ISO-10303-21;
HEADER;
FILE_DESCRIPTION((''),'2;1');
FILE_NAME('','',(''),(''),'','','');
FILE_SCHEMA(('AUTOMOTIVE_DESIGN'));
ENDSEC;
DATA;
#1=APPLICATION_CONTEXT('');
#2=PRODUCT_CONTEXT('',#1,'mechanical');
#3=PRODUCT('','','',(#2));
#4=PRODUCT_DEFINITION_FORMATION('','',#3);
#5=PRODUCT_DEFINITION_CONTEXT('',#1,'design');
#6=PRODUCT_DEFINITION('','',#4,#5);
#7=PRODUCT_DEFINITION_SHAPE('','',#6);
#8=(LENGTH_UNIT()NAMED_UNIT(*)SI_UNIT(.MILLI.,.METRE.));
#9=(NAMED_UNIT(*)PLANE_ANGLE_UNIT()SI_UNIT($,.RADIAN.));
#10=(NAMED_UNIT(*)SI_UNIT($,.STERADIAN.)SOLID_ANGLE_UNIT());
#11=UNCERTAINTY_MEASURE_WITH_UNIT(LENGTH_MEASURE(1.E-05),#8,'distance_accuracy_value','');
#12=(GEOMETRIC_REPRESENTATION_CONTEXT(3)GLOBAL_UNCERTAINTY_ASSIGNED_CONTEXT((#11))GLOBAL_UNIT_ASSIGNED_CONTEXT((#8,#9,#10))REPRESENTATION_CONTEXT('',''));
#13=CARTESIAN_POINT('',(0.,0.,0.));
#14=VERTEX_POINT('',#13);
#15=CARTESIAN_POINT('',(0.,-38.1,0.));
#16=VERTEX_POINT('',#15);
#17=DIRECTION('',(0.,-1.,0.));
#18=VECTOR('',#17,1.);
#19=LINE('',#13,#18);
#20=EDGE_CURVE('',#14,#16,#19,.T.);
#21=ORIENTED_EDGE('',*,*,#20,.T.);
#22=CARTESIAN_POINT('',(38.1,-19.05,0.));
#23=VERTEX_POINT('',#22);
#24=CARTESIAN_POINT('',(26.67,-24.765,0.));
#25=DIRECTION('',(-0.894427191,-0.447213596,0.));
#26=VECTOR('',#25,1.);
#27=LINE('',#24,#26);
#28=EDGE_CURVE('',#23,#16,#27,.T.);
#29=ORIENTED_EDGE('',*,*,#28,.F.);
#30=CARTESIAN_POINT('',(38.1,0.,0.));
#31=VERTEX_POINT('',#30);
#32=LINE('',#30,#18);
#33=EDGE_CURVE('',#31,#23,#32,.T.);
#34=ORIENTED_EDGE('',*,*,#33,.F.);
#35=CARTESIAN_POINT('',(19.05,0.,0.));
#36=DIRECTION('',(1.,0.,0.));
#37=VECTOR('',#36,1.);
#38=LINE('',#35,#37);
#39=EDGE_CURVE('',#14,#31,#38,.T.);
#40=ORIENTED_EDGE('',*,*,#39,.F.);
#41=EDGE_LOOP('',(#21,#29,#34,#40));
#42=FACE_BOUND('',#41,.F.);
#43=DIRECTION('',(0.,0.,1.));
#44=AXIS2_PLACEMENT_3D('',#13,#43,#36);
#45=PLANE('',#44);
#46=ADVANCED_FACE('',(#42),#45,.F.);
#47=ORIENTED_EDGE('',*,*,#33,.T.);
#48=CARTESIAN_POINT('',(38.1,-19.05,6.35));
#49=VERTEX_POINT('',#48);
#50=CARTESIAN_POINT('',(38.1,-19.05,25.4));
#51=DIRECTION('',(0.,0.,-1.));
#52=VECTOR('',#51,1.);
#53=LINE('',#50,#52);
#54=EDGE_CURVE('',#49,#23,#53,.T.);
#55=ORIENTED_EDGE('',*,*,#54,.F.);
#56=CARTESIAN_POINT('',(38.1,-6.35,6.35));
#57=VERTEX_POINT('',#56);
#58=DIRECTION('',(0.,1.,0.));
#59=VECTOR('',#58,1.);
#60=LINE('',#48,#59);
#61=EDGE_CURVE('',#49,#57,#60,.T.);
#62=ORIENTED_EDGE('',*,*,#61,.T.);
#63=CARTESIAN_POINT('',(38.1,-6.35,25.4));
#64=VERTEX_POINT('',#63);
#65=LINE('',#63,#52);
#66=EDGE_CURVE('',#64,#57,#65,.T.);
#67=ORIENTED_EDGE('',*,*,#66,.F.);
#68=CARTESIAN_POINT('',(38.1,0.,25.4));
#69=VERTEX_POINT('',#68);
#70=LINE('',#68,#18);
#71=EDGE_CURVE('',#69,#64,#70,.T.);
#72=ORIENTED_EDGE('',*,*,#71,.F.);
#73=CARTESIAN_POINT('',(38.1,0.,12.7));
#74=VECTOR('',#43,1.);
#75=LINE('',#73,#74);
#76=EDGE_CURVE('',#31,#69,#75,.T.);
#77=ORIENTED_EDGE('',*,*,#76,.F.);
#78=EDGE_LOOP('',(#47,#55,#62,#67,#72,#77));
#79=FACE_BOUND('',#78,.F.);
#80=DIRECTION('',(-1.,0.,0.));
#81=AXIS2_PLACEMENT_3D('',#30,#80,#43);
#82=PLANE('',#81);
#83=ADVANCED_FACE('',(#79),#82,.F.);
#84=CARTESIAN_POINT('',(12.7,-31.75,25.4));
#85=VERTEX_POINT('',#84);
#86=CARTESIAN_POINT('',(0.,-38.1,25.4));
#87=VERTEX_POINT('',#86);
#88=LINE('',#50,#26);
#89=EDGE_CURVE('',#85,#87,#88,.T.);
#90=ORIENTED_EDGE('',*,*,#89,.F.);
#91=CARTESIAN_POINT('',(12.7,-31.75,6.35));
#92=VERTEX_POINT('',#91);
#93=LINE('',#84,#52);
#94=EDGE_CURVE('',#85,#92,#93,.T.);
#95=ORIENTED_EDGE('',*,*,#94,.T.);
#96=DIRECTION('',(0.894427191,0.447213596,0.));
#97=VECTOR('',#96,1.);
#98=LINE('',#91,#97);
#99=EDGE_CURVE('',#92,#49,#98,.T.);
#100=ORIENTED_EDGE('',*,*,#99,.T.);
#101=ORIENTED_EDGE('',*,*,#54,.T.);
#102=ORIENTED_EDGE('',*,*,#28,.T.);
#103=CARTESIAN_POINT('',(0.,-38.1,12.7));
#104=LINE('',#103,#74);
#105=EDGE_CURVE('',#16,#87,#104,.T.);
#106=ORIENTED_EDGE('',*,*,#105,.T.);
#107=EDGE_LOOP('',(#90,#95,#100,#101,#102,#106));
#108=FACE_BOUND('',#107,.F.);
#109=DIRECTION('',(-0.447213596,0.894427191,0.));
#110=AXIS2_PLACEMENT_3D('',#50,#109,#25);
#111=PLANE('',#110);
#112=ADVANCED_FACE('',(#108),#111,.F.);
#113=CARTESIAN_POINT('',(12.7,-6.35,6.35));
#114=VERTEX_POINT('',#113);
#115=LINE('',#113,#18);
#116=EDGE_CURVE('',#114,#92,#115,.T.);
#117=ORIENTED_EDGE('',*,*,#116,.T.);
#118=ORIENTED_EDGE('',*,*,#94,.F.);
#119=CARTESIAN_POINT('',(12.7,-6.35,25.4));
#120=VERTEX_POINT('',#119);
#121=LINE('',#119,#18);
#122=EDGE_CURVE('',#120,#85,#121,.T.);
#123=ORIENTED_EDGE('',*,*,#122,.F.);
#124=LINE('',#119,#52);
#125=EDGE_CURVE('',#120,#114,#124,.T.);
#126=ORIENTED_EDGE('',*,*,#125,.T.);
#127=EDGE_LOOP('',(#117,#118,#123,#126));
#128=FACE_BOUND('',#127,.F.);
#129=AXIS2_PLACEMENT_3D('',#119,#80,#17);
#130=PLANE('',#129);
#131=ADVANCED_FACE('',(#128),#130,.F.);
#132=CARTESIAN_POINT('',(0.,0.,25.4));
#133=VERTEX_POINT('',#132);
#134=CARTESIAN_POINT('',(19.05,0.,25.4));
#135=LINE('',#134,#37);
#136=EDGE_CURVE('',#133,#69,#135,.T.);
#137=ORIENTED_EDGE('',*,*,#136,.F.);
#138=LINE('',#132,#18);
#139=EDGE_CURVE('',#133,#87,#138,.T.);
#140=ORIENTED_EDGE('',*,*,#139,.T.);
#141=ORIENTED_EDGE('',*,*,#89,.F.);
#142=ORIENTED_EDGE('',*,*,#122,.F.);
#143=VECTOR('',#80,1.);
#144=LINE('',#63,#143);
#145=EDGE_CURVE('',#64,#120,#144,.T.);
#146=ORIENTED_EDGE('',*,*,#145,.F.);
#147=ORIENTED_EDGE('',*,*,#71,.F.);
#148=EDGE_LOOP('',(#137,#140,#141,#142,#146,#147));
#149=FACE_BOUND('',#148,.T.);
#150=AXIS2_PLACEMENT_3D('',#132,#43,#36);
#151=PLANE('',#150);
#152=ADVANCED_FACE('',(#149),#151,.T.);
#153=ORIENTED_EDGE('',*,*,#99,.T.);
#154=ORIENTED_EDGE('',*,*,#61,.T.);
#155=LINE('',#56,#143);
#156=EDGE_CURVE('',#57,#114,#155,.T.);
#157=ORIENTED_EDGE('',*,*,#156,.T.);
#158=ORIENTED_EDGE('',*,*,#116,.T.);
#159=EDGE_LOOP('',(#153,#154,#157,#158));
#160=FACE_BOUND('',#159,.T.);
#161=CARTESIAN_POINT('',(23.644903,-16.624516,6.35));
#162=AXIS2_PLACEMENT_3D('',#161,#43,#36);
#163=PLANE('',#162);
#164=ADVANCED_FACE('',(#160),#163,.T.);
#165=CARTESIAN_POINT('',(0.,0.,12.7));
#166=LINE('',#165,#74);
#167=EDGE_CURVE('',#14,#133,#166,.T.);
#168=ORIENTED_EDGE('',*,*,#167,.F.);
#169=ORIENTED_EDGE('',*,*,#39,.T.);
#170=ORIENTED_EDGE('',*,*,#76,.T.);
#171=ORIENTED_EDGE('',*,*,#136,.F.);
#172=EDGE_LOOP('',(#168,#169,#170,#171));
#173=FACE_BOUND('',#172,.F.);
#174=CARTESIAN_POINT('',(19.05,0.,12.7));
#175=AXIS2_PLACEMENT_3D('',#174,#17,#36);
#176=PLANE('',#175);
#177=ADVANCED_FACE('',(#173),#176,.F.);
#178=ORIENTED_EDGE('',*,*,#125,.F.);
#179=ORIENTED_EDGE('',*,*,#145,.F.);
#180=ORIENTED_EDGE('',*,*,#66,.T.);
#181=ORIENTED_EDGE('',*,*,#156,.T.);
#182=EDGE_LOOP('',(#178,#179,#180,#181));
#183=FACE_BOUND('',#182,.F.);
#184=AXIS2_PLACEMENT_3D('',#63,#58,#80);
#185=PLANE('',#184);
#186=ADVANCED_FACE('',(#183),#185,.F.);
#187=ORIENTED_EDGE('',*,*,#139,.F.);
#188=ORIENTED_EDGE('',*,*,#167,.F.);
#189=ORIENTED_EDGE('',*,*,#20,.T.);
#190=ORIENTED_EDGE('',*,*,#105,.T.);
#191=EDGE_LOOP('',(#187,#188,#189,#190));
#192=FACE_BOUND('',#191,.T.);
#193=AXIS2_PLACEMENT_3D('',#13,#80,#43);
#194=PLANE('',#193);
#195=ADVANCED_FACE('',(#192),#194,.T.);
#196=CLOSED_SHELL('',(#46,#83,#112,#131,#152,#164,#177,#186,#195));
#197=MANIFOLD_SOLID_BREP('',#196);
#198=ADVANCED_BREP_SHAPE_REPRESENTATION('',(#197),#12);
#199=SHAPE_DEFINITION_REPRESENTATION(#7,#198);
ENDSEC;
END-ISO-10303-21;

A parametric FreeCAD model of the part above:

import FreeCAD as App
import Part
import Sketcher

V = App.Vector
Q = App.Units.Quantity

doc = App.newDocument("Part")
params = doc.addObject("Spreadsheet::Sheet", "Params")
for row, (alias, value) in enumerate([
    ("sketch1_height", "1 in"),
    ("sketch1_width", "1.5 in"),
    ("pad1_length", "1.5 in"),
    ("sketch2_width", "1.5 in"),
    ("sketch2_height", "0.75 in"),
    ("pocket1_length", "4 in"),
    ("sketch3_width", "1 in"),
    ("sketch3_height", "0.5 in"),
    ("pocket2_length", "0.75 in"),
], start=1):
    params.set(f"A{row}", alias)
    params.set(f"B{row}", "=" + value)
    params.setAlias(f"B{row}", alias)

body = doc.addObject("PartDesign::Body", "Body")

# Sketch on XZ plane
sketch1 = doc.addObject("Sketcher::SketchObject", "Sketch")
body.addObject(sketch1)
sketch1.AttachmentSupport = (doc.XZ_Plane, [""])
sketch1.MapMode = "FlatFace"
sketch1.addGeometry(Part.LineSegment(V(0, 25.4, 0), V(0, 0, 0)), False)
sketch1.addGeometry(Part.LineSegment(V(0, 0, 0), V(38.1, 0, 0)), False)
sketch1.addGeometry(Part.LineSegment(V(38.1, 0, 0), V(38.1, 25.4, 0)), False)
sketch1.addGeometry(Part.LineSegment(V(38.1, 25.4, 0), V(0, 25.4, 0)), False)
sketch1.addConstraint(Sketcher.Constraint("Coincident", 0, 2, 1, 1))
sketch1.addConstraint(Sketcher.Constraint("Coincident", 1, 2, 2, 1))
sketch1.addConstraint(Sketcher.Constraint("Coincident", 2, 2, 3, 1))
sketch1.addConstraint(Sketcher.Constraint("Coincident", 3, 2, 0, 1))
sketch1.addConstraint(Sketcher.Constraint("Vertical", 0))
sketch1.addConstraint(Sketcher.Constraint("Horizontal", 1))
sketch1.addConstraint(Sketcher.Constraint("Vertical", 2))
sketch1.addConstraint(Sketcher.Constraint("Horizontal", 3))
sketch1.addConstraint(Sketcher.Constraint("Coincident", 0, 2, -1, 1))
sketch1.addConstraint(Sketcher.Constraint("DistanceY", 0, 2, 0, 1, Q("1 in")))
sketch1.addConstraint(Sketcher.Constraint("DistanceX", 1, 1, 1, 2, Q("1.5 in")))
sketch1.setExpression("Constraints[9]", "Params.sketch1_height")
sketch1.setExpression("Constraints[10]", "Params.sketch1_width")
pad1 = doc.addObject("PartDesign::Pad", "Pad")
body.addObject(pad1)
pad1.Profile = sketch1
pad1.setExpression("Length", "Params.pad1_length")

# Sketch on XY plane
sketch2 = doc.addObject("Sketcher::SketchObject", "Sketch001")
body.addObject(sketch2)
sketch2.AttachmentSupport = (doc.XY_Plane, [""])
sketch2.MapMode = "FlatFace"
sketch2.AttachmentOffset = App.Placement(V(0, 0, 1 * 25.4), App.Rotation())
sketch2.addGeometry(Part.LineSegment(V(38.1, -38.1, 0), V(38.1, -19.05, 0)), False)
sketch2.addGeometry(Part.LineSegment(V(38.1, -19.05, 0), V(0, -38.1, 0)), False)
sketch2.addGeometry(Part.LineSegment(V(0, -38.1, 0), V(38.1, -38.1, 0)), False)
sketch2.addConstraint(Sketcher.Constraint("Coincident", 0, 2, 1, 1))
sketch2.addConstraint(Sketcher.Constraint("Coincident", 1, 2, 2, 1))
sketch2.addConstraint(Sketcher.Constraint("Coincident", 2, 2, 0, 1))
sketch2.addConstraint(Sketcher.Constraint("Vertical", 0))
sketch2.addConstraint(Sketcher.Constraint("Horizontal", 2))
sketch2.addConstraint(Sketcher.Constraint("PointOnObject", 1, 2, -2))
sketch2.addConstraint(Sketcher.Constraint("DistanceX", 2, 1, 2, 2, Q("1.5 in")))
sketch2.addConstraint(Sketcher.Constraint("DistanceY", 0, 1, 0, 2, Q("0.75 in")))
sketch2.addConstraint(Sketcher.Constraint("DistanceY", 1, 2, -1, 1, Q("1.5 in")))
sketch2.setExpression("Constraints[6]", "Params.sketch2_width")
sketch2.setExpression("Constraints[7]", "Params.sketch2_height")
pocket1 = doc.addObject("PartDesign::Pocket", "Pocket")
body.addObject(pocket1)
pocket1.Profile = sketch2
pocket1.setExpression("Length", "Params.pocket1_length")

# Sketch on XY plane
sketch3 = doc.addObject("Sketcher::SketchObject", "Sketch002")
body.addObject(sketch3)
sketch3.AttachmentSupport = (doc.XY_Plane, [""])
sketch3.MapMode = "FlatFace"
sketch3.AttachmentOffset = App.Placement(V(0, 0, 1 * 25.4), App.Rotation())
sketch3.addGeometry(Part.LineSegment(V(38.1, -19.05, 0), V(38.1, -6.35, 0)), False)
sketch3.addGeometry(Part.LineSegment(V(38.1, -6.35, 0), V(12.7, -6.35, 0)), False)
sketch3.addGeometry(Part.LineSegment(V(12.7, -6.35, 0), V(12.7, -31.75, 0)), False)
sketch3.addGeometry(Part.LineSegment(V(12.7, -31.75, 0), V(38.1, -19.05, 0)), False)
sketch3.addConstraint(Sketcher.Constraint("Coincident", 0, 2, 1, 1))
sketch3.addConstraint(Sketcher.Constraint("Coincident", 1, 2, 2, 1))
sketch3.addConstraint(Sketcher.Constraint("Coincident", 2, 2, 3, 1))
sketch3.addConstraint(Sketcher.Constraint("Coincident", 3, 2, 0, 1))
sketch3.addConstraint(Sketcher.Constraint("Vertical", 0))
sketch3.addConstraint(Sketcher.Constraint("Horizontal", 1))
sketch3.addConstraint(Sketcher.Constraint("Vertical", 2))
sketch3.addConstraint(Sketcher.Constraint("Equal", 1, 2))
sketch3.addConstraint(Sketcher.Constraint("DistanceX", 1, 2, 1, 1, Q("1 in")))
sketch3.addConstraint(Sketcher.Constraint("DistanceY", 0, 1, 0, 2, Q("0.5 in")))
sketch3.addConstraint(Sketcher.Constraint("DistanceX", -1, 1, 0, 2, Q("1.5 in")))
sketch3.addConstraint(Sketcher.Constraint("DistanceY", 0, 2, -1, 1, Q("0.25 in")))
sketch3.setExpression("Constraints[8]", "Params.sketch3_width")
sketch3.setExpression("Constraints[9]", "Params.sketch3_height")
pocket2 = doc.addObject("PartDesign::Pocket", "Pocket001")
body.addObject(pocket2)
pocket2.Profile = sketch3
pocket2.setExpression("Length", "Params.pocket2_length")

doc.recompute()
